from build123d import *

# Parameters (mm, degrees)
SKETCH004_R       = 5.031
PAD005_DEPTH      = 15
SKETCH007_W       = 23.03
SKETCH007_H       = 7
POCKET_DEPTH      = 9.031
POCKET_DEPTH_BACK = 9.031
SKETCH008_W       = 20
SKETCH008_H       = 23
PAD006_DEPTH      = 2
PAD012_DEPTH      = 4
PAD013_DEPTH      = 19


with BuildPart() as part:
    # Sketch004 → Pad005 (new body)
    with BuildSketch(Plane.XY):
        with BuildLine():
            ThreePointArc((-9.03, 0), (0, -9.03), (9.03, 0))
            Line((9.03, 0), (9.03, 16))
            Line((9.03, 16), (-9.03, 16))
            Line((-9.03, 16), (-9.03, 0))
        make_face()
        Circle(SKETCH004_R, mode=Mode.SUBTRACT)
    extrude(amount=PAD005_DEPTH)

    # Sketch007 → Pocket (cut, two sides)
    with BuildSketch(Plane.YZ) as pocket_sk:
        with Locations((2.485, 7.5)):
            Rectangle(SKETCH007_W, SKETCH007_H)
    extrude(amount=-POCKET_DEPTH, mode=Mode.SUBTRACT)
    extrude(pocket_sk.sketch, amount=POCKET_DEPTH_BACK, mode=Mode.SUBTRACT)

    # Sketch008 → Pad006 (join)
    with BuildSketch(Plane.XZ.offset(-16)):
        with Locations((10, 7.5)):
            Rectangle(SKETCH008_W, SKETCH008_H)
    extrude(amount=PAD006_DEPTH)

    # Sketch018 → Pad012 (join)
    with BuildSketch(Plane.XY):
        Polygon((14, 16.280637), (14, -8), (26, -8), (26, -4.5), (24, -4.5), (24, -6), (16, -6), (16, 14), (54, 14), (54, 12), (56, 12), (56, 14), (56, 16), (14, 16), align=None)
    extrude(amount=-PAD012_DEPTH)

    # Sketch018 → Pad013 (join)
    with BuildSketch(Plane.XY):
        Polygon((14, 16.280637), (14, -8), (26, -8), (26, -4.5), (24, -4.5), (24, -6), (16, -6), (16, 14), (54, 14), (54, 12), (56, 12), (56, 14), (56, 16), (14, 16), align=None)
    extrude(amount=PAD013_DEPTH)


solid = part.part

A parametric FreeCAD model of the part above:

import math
import FreeCAD as App
import Part
import Sketcher
from FreeCAD import Vector


def add_polygon(sketch, points):
    """Adds a closed chain of lines whose ends are joined by coincident constraints."""
    first, n = sketch.GeometryCount, len(points)
    for a, b in zip(points, points[1:] + points[:1]):
        sketch.addGeometry(Part.LineSegment(App.Vector(*a, 0), App.Vector(*b, 0)), False)
    for i in range(n):
        sketch.addConstraint(Sketcher.Constraint("Coincident", first + i, 2, first + (i + 1) % n, 1))

doc = App.newDocument("Part")
body = doc.addObject("PartDesign::Body", "Body")

# Sketch on XY plane
sketch1 = body.newObject("Sketcher::SketchObject", "Sketch")
sketch1.AttachmentSupport = (doc.getObject("XY_Plane"), [""])
sketch1.MapMode = "FlatFace"
sketch1.addGeometry([
    Part.ArcOfCircle(Part.Circle(Vector(0, 0, 0), Vector(0, 0, 1), 9), math.radians(180), math.radians(360)),  # 0
    Part.LineSegment(Vector(9, 0, 0), Vector(9, 16, 0)),  # 1
    Part.LineSegment(Vector(9, 16, 0), Vector(-9, 16, 0)),  # 2
    Part.LineSegment(Vector(-9, 16, 0), Vector(-9, 0, 0)),  # 3
    Part.Circle(Vector(0, 0, 0), Vector(0, 0, 1), 5),  # 4
], False)
sketch1.addConstraint([
    Sketcher.Constraint("Tangent", 0, 2, 1, 1),
    Sketcher.Constraint("Coincident", 1, 2, 2, 1),
    Sketcher.Constraint("Coincident", 2, 2, 3, 1),
    Sketcher.Constraint("Tangent", 3, 2, 0, 1),
    Sketcher.Constraint("Vertical", 1),
    Sketcher.Constraint("Horizontal", 2),
    Sketcher.Constraint("Vertical", 3),
    Sketcher.Constraint("Coincident", 0, 3, -1, 1),
    Sketcher.Constraint("Coincident", 4, 3, -1, 1),
    Sketcher.Constraint("DistanceY", 1, 1, 1, 2, 16.0),
    Sketcher.Constraint("Radius", 0, 9.03),
    Sketcher.Constraint("Diameter", 4, 10.062),
])
pad1 = body.newObject("PartDesign::Pad", "Pad")
pad1.Profile = sketch1
pad1.Length = 15

# Sketch on YZ plane
sketch2 = body.newObject("Sketcher::SketchObject", "Sketch001")
sketch2.AttachmentSupport = (doc.getObject("YZ_Plane"), [""])
sketch2.MapMode = "FlatFace"
add_polygon(sketch2, [(-9, 11), (-9, 4), (14, 4), (14, 11)])  # lines 0-3
sketch2.addConstraint([
    Sketcher.Constraint("Vertical", 0),
    Sketcher.Constraint("Horizontal", 1),
    Sketcher.Constraint("Vertical", 2),
    Sketcher.Constraint("Horizontal", 3),
    Sketcher.Constraint("DistanceY", 0, 2, 0, 1, 7.0),
    Sketcher.Constraint("DistanceY", -1, 1, 0, 2, 4.0),
    Sketcher.Constraint("DistanceX", -1, 1, 1, 2, 14.0),
    Sketcher.Constraint("DistanceX", 1, 1, 1, 2, 23.03),
])
pocket1 = body.newObject("PartDesign::Pocket", "Pocket")
pocket1.Profile = sketch2
pocket1.Type = "ThroughAll"
pocket1.Midplane = True

# Sketch on XZ plane
sketch3 = body.newObject("Sketcher::SketchObject", "Sketch002")
sketch3.AttachmentSupport = (doc.getObject("XZ_Plane"), [""])
sketch3.MapMode = "FlatFace"
sketch3.AttachmentOffset = App.Placement(Vector(0, 0, -16), App.Rotation())
add_polygon(sketch3, [(0, 19), (0, -4), (20, -4), (20, 19)])  # lines 0-3
sketch3.addConstraint([
    Sketcher.Constraint("Vertical", 0),
    Sketcher.Constraint("Horizontal", 1),
    Sketcher.Constraint("Vertical", 2),
    Sketcher.Constraint("Horizontal", 3),
    Sketcher.Constraint("PointOnObject", 0, 2, -2),
    Sketcher.Constraint("DistanceX", 1, 1, 1, 2, 20.0),
    Sketcher.Constraint("DistanceY", 0, 2, 0, 1, 23.0),
    Sketcher.Constraint("DistanceY", 0, 2, -1, 1, 4.0),
])
pad2 = body.newObject("PartDesign::Pad", "Pad001")
pad2.Profile = sketch3
pad2.Length = 2

# Sketch on XY plane
sketch4 = body.newObject("Sketcher::SketchObject", "Sketch003")
sketch4.AttachmentSupport = (doc.getObject("XY_Plane"), [""])
sketch4.MapMode = "FlatFace"
add_polygon(sketch4, [(14, 16), (14, -8), (26, -8), (26, -4.5), (24, -4.5), (24, -6), (16, -6), (16, 14), (54, 14), (54, 12), (56, 12), (56, 16)])  # lines 0-11
sketch4.addConstraint([
    Sketcher.Constraint("Vertical", 0),
    Sketcher.Constraint("Horizontal", 1),
    Sketcher.Constraint("Vertical", 2),
    Sketcher.Constraint("Horizontal", 3),
    Sketcher.Constraint("Vertical", 4),
    Sketcher.Constraint("Horizontal", 5),
    Sketcher.Constraint("Vertical", 6),
    Sketcher.Constraint("Horizontal", 7),
    Sketcher.Constraint("Vertical", 8),
    Sketcher.Constraint("Horizontal", 9),
    Sketcher.Constraint("Vertical", 10),
    Sketcher.Constraint("Horizontal", 11),
    Sketcher.Constraint("Equal", 3, 9),
    Sketcher.Constraint("Equal", 9, 8),
    Sketcher.Constraint("DistanceX", 1, 1, 1, 2, 12.0),
    Sketcher.Constraint("DistanceX", 3, 2, 3, 1, 2.0),
    Sketcher.Constraint("DistanceX", 5, 2, 5, 1, 8.0),
    Sketcher.Constraint("DistanceX", 7, 1, 7, 2, 38.0),
    Sketcher.Constraint("DistanceY", 0, 2, 0, 1, 24.0),
    Sketcher.Constraint("DistanceY", 6, 1, 6, 2, 20.0),
    Sketcher.Constraint("DistanceY", 10, 1, 10, 2, 4.0),
    Sketcher.Constraint("DistanceY", 2, 1, 2, 2, 3.5),
    Sketcher.Constraint("DistanceX", -1, 1, 0, 2, 14.0),
    Sketcher.Constraint("DistanceY", 0, 2, -1, 1, 8.0),
])
pad3 = body.newObject("PartDesign::Pad", "Pad002")
pad3.Profile = sketch4
pad3.Length = 4
pad3.Reversed = True

# Sketch on XY plane
sketch5 = body.newObject("Sketcher::SketchObject", "Sketch004")
sketch5.AttachmentSupport = (doc.getObject("XY_Plane"), [""])
sketch5.MapMode = "FlatFace"
add_polygon(sketch5, [(14, 16), (14, -8), (26, -8), (26, -4.5), (24, -4.5), (24, -6), (16, -6), (16, 14), (54, 14), (54, 12), (56, 12), (56, 16)])  # lines 0-11
sketch5.addConstraint([
    Sketcher.Constraint("Vertical", 0),
    Sketcher.Constraint("Horizontal", 1),
    Sketcher.Constraint("Vertical", 2),
    Sketcher.Constraint("Horizontal", 3),
    Sketcher.Constraint("Vertical", 4),
    Sketcher.Constraint("Horizontal", 5),
    Sketcher.Constraint("Vertical", 6),
    Sketcher.Constraint("Horizontal", 7),
    Sketcher.Constraint("Vertical", 8),
    Sketcher.Constraint("Horizontal", 9),
    Sketcher.Constraint("Vertical", 10),
    Sketcher.Constraint("Horizontal", 11),
    Sketcher.Constraint("Equal", 3, 9),
    Sketcher.Constraint("Equal", 9, 8),
    Sketcher.Constraint("DistanceX", 1, 1, 1, 2, 12.0),
    Sketcher.Constraint("DistanceX", 3, 2, 3, 1, 2.0),
    Sketcher.Constraint("DistanceX", 5, 2, 5, 1, 8.0),
    Sketcher.Constraint("DistanceX", 7, 1, 7, 2, 38.0),
    Sketcher.Constraint("DistanceY", 0, 2, 0, 1, 24.0),
    Sketcher.Constraint("DistanceY", 6, 1, 6, 2, 20.0),
    Sketcher.Constraint("DistanceY", 10, 1, 10, 2, 4.0),
    Sketcher.Constraint("DistanceY", 2, 1, 2, 2, 3.5),
    Sketcher.Constraint("DistanceX", -1, 1, 0, 2, 14.0),
    Sketcher.Constraint("DistanceY", 0, 2, -1, 1, 8.0),
])
pad4 = body.newObject("PartDesign::Pad", "Pad003")
pad4.Profile = sketch5
pad4.Length = 19

doc.recompute()
